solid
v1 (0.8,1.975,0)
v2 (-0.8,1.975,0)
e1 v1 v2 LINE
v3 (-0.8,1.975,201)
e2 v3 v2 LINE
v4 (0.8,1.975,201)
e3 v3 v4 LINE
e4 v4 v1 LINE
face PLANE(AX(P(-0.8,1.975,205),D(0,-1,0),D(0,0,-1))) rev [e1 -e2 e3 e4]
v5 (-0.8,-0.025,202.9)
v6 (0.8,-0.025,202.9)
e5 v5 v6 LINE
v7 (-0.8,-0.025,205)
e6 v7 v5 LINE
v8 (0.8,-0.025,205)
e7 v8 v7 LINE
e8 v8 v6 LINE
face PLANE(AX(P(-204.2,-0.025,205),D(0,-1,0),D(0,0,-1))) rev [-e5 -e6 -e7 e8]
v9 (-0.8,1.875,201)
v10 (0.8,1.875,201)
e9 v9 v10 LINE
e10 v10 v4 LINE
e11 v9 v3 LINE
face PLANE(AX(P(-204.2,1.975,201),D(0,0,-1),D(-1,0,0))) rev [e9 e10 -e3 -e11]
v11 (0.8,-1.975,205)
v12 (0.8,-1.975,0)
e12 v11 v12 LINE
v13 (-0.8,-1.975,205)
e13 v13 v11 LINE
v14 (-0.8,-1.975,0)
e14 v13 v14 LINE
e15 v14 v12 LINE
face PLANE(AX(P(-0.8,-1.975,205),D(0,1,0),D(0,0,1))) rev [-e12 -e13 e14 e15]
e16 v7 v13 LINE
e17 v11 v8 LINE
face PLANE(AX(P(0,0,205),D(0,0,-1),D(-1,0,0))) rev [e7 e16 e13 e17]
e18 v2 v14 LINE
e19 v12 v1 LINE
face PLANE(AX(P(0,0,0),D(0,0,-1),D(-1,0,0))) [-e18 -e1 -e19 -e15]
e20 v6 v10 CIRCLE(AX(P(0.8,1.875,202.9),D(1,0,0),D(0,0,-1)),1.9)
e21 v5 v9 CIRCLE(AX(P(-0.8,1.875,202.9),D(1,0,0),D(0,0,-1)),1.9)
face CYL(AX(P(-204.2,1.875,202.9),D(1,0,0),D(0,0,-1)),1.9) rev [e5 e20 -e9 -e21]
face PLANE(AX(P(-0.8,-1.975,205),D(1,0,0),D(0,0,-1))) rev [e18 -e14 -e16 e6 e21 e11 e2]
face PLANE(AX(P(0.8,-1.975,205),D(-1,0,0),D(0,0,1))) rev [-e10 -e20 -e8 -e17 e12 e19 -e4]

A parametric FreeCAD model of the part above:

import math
import FreeCAD as App
import Part
import Sketcher

V = App.Vector
Q = App.Units.Quantity

doc = App.newDocument("Part")
body = doc.addObject("PartDesign::Body", "Body")

# Sketch on XY plane
sketch1 = body.newObject("Sketcher::SketchObject", "Sketch")
sketch1.AttachmentSupport = (doc.getObject("XY_Plane"), [""])
sketch1.MapMode = "FlatFace"
sketch1.addGeometry([
    Part.LineSegment(V(-0.8, 2, 0), V(-0.8, -2, 0)),
    Part.LineSegment(V(-0.8, -2, 0), V(0.8, -2, 0)),
    Part.LineSegment(V(0.8, -2, 0), V(0.8, 2, 0)),
    Part.LineSegment(V(0.8, 2, 0), V(-0.8, 2, 0)),
], False)
sketch1.addConstraint([
    Sketcher.Constraint("Coincident", 0, 2, 1, 1),
    Sketcher.Constraint("Coincident", 1, 2, 2, 1),
    Sketcher.Constraint("Coincident", 2, 2, 3, 1),
    Sketcher.Constraint("Coincident", 3, 2, 0, 1),
    Sketcher.Constraint("Vertical", 0),
    Sketcher.Constraint("Horizontal", 1),
    Sketcher.Constraint("Vertical", 2),
    Sketcher.Constraint("Horizontal", 3),
    Sketcher.Constraint("Symmetric", 0, 2, 2, 2, -1, 1),
    Sketcher.Constraint("DistanceX", 1, 1, 1, 2, Q("1.6 mm")),
    Sketcher.Constraint("DistanceY", 0, 2, 0, 1, Q("3.95 mm")),
])
pad1 = body.newObject("PartDesign::Pad", "Pad")
pad1.Profile = sketch1
pad1.Length = 205

# Sketch on YZ plane
sketch2 = body.newObject("Sketcher::SketchObject", "Sketch001")
sketch2.AttachmentSupport = (doc.getObject("YZ_Plane"), [""])
sketch2.MapMode = "FlatFace"
sketch2.AttachmentOffset = App.Placement(V(0, 0, 0.8), App.Rotation())
sketch2.addGeometry([
    Part.LineSegment(V(1.98, 201, 0), V(1.98, 205, 0)),  # 0
    Part.LineSegment(V(1.98, 205, 0), V(-0.03, 205, 0)),  # 1
    Part.LineSegment(V(-0.03, 205, 0), V(-0.03, 202.9, 0)),  # 2
    Part.ArcOfCircle(Part.Circle(V(1.88, 202.9, 0), V(0, 0, 1), 1.9), math.radians(-180), math.radians(-90)),  # 3
    Part.LineSegment(V(1.88, 201, 0), V(1.98, 201, 0)),  # 4
], False)
sketch2.addConstraint([
    Sketcher.Constraint("Coincident", 0, 2, 1, 1),
    Sketcher.Constraint("Coincident", 1, 2, 2, 1),
    Sketcher.Constraint("Tangent", 2, 2, 3, 1),
    Sketcher.Constraint("Tangent", 3, 2, 4, 1),
    Sketcher.Constraint("Coincident", 4, 2, 0, 1),
    Sketcher.Constraint("Vertical", 0),
    Sketcher.Constraint("Horizontal", 1),
    Sketcher.Constraint("Vertical", 2),
    Sketcher.Constraint("Horizontal", 4),
    Sketcher.Constraint("Radius", 3, Q("1.9 mm")),
    Sketcher.Constraint("DistanceX", 1, 2, 1, 1, Q("2 mm")),
    Sketcher.Constraint("DistanceY", 0, 1, 0, 2, Q("4 mm")),
    Sketcher.Constraint("DistanceY", -1, 1, 0, 2, Q("205 mm")),
    Sketcher.Constraint("DistanceX", -1, 1, 3, 3, Q("1.875 mm")),
])
pocket1 = body.newObject("PartDesign::Pocket", "Pocket")
pocket1.Profile = sketch2
pocket1.Length = 205

doc.recompute()
